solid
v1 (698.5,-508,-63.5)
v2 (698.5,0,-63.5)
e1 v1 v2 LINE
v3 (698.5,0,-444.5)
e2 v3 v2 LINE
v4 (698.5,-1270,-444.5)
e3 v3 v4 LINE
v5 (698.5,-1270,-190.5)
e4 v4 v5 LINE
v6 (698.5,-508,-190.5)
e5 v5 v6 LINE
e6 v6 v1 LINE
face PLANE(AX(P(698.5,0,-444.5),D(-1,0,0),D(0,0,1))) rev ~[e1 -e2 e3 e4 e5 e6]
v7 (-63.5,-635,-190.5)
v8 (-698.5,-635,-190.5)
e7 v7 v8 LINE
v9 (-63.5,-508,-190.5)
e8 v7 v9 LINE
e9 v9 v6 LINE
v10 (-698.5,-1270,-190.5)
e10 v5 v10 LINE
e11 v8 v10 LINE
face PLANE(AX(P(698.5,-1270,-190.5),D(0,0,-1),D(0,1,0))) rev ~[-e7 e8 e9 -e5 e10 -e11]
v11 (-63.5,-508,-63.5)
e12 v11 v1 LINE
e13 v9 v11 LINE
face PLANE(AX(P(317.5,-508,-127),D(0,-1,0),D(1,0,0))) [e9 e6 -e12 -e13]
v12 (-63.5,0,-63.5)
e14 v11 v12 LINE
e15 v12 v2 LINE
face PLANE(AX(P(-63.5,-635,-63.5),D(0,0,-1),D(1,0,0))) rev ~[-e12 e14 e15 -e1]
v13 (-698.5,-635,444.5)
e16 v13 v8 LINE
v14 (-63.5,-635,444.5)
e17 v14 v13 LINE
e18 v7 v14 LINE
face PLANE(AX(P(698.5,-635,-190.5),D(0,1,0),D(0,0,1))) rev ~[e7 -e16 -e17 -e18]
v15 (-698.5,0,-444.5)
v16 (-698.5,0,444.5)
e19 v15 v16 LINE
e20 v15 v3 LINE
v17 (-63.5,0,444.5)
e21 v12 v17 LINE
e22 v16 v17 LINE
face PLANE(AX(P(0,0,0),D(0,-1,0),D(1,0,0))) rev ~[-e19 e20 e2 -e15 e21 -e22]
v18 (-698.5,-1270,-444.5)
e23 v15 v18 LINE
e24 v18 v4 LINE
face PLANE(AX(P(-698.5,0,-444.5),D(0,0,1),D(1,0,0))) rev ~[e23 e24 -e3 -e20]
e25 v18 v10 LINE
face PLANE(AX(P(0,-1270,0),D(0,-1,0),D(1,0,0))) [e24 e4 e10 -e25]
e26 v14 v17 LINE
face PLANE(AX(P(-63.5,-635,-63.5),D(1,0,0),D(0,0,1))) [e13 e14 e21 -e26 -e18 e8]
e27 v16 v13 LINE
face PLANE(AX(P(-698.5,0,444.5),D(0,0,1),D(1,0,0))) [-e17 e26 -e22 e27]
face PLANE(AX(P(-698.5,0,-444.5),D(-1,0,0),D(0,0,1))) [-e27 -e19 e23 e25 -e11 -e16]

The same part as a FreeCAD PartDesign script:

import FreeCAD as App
import Part
import Sketcher
from FreeCAD import Vector
Q = App.Units.Quantity


def add_polygon(sketch, points):
    """Adds a closed chain of lines whose ends are joined by coincident constraints."""
    first, n = sketch.GeometryCount, len(points)
    for a, b in zip(points, points[1:] + points[:1]):
        sketch.addGeometry(Part.LineSegment(App.Vector(*a, 0), App.Vector(*b, 0)), False)
    for i in range(n):
        sketch.addConstraint(Sketcher.Constraint("Coincident", first + i, 2, first + (i + 1) % n, 1))

doc = App.newDocument("Part")
body = doc.addObject("PartDesign::Body", "Body")

# Sketch on XZ plane
sketch1 = doc.addObject("Sketcher::SketchObject", "Sketch")
body.addObject(sketch1)
sketch1.AttachmentSupport = (doc.XZ_Plane, [""])
sketch1.MapMode = "FlatFace"
add_polygon(sketch1, [(-698, 444), (-698, -444), (698, -444), (698, 444)])  # lines 0-3
sketch1.addConstraint([
    Sketcher.Constraint("Vertical", 0),
    Sketcher.Constraint("Horizontal", 1),
    Sketcher.Constraint("Vertical", 2),
    Sketcher.Constraint("Horizontal", 3),
    Sketcher.Constraint("Symmetric", 0, 2, 2, 2, -1, 1),
    Sketcher.Constraint("DistanceX", 1, 1, 1, 2, Q("55 in")),
    Sketcher.Constraint("DistanceY", 0, 2, 0, 1, Q("35 in")),
])
pad1 = doc.addObject("PartDesign::Pad", "Pad")
body.addObject(pad1)
pad1.Profile = sketch1
pad1.Length = Q("50 in")

# Sketch on YZ plane
sketch2 = doc.addObject("Sketcher::SketchObject", "Sketch001")
body.addObject(sketch2)
sketch2.AttachmentSupport = (doc.YZ_Plane, [""])
sketch2.MapMode = "FlatFace"
sketch2.AttachmentOffset = App.Placement(Vector(0, 0, 27.5 * 25.4), App.Rotation())
add_polygon(sketch2, [(-1270, 444), (-1270, -190), (-635, -190), (-635, 444)])  # lines 0-3
sketch2.addConstraint([
    Sketcher.Constraint("Vertical", 0),
    Sketcher.Constraint("Horizontal", 1),
    Sketcher.Constraint("Vertical", 2),
    Sketcher.Constraint("Horizontal", 3),
    Sketcher.Constraint("Equal", 3, 0),
    Sketcher.Constraint("DistanceX", 1, 1, 1, 2, Q("25 in")),
    Sketcher.Constraint("DistanceX", 0, 2, -1, 1, Q("50 in")),
    Sketcher.Constraint("DistanceY", 0, 2, -1, 1, Q("7.5 in")),
])
pocket1 = doc.addObject("PartDesign::Pocket", "Pocket")
body.addObject(pocket1)
pocket1.Profile = sketch2
pocket1.Type = "ThroughAll"

# Sketch on XZ plane
sketch3 = doc.addObject("Sketcher::SketchObject", "Sketch002")
body.addObject(sketch3)
sketch3.AttachmentSupport = (doc.XZ_Plane, [""])
sketch3.MapMode = "FlatFace"
sketch3.AttachmentOffset = App.Placement(Vector(0, 0, 25 * 25.4), App.Rotation())
add_polygon(sketch3, [(-64, 444), (-64, -64), (698, -64), (698, 444)])  # lines 0-3
sketch3.addConstraint([
    Sketcher.Constraint("Vertical", 0),
    Sketcher.Constraint("Horizontal", 1),
    Sketcher.Constraint("Vertical", 2),
    Sketcher.Constraint("Horizontal", 3),
    Sketcher.Constraint("DistanceX", 1, 1, 1, 2, Q("30 in")),
    Sketcher.Constraint("DistanceY", 0, 2, 0, 1, Q("20 in")),
    Sketcher.Constraint("DistanceX", 0, 2, -1, 1, Q("2.5 in")),
    Sketcher.Constraint("DistanceY", 0, 2, -1, 1, Q("2.5 in")),
])
pocket2 = doc.addObject("PartDesign::Pocket", "Pocket001")
body.addObject(pocket2)
pocket2.Profile = sketch3
pocket2.Type = "ThroughAll"

# Sketch on XZ plane
sketch4 = doc.addObject("Sketcher::SketchObject", "Sketch003")
body.addObject(sketch4)
sketch4.AttachmentSupport = (doc.XZ_Plane, [""])
sketch4.MapMode = "FlatFace"
sketch4.AttachmentOffset = App.Placement(Vector(0, 0, 25 * 25.4), App.Rotation())
add_polygon(sketch4, [(-64, -64), (-64, -190), (698, -190), (698, -64)])  # lines 0-3
sketch4.addConstraint([
    Sketcher.Constraint("Vertical", 0),
    Sketcher.Constraint("Horizontal", 1),
    Sketcher.Constraint("Vertical", 2),
    Sketcher.Constraint("Horizontal", 3),
    Sketcher.Constraint("DistanceX", 1, 1, 1, 2, Q("30 in")),
    Sketcher.Constraint("DistanceY", 0, 2, 0, 1, Q("5 in")),
    Sketcher.Constraint("DistanceX", 0, 2, -1, 1, Q("2.5 in")),
    Sketcher.Constraint("DistanceY", 0, 2, -1, 1, Q("7.5 in")),
])
pocket3 = doc.addObject("PartDesign::Pocket", "Pocket002")
body.addObject(pocket3)
pocket3.Profile = sketch4
pocket3.Length = Q("5 in")

doc.recompute()
